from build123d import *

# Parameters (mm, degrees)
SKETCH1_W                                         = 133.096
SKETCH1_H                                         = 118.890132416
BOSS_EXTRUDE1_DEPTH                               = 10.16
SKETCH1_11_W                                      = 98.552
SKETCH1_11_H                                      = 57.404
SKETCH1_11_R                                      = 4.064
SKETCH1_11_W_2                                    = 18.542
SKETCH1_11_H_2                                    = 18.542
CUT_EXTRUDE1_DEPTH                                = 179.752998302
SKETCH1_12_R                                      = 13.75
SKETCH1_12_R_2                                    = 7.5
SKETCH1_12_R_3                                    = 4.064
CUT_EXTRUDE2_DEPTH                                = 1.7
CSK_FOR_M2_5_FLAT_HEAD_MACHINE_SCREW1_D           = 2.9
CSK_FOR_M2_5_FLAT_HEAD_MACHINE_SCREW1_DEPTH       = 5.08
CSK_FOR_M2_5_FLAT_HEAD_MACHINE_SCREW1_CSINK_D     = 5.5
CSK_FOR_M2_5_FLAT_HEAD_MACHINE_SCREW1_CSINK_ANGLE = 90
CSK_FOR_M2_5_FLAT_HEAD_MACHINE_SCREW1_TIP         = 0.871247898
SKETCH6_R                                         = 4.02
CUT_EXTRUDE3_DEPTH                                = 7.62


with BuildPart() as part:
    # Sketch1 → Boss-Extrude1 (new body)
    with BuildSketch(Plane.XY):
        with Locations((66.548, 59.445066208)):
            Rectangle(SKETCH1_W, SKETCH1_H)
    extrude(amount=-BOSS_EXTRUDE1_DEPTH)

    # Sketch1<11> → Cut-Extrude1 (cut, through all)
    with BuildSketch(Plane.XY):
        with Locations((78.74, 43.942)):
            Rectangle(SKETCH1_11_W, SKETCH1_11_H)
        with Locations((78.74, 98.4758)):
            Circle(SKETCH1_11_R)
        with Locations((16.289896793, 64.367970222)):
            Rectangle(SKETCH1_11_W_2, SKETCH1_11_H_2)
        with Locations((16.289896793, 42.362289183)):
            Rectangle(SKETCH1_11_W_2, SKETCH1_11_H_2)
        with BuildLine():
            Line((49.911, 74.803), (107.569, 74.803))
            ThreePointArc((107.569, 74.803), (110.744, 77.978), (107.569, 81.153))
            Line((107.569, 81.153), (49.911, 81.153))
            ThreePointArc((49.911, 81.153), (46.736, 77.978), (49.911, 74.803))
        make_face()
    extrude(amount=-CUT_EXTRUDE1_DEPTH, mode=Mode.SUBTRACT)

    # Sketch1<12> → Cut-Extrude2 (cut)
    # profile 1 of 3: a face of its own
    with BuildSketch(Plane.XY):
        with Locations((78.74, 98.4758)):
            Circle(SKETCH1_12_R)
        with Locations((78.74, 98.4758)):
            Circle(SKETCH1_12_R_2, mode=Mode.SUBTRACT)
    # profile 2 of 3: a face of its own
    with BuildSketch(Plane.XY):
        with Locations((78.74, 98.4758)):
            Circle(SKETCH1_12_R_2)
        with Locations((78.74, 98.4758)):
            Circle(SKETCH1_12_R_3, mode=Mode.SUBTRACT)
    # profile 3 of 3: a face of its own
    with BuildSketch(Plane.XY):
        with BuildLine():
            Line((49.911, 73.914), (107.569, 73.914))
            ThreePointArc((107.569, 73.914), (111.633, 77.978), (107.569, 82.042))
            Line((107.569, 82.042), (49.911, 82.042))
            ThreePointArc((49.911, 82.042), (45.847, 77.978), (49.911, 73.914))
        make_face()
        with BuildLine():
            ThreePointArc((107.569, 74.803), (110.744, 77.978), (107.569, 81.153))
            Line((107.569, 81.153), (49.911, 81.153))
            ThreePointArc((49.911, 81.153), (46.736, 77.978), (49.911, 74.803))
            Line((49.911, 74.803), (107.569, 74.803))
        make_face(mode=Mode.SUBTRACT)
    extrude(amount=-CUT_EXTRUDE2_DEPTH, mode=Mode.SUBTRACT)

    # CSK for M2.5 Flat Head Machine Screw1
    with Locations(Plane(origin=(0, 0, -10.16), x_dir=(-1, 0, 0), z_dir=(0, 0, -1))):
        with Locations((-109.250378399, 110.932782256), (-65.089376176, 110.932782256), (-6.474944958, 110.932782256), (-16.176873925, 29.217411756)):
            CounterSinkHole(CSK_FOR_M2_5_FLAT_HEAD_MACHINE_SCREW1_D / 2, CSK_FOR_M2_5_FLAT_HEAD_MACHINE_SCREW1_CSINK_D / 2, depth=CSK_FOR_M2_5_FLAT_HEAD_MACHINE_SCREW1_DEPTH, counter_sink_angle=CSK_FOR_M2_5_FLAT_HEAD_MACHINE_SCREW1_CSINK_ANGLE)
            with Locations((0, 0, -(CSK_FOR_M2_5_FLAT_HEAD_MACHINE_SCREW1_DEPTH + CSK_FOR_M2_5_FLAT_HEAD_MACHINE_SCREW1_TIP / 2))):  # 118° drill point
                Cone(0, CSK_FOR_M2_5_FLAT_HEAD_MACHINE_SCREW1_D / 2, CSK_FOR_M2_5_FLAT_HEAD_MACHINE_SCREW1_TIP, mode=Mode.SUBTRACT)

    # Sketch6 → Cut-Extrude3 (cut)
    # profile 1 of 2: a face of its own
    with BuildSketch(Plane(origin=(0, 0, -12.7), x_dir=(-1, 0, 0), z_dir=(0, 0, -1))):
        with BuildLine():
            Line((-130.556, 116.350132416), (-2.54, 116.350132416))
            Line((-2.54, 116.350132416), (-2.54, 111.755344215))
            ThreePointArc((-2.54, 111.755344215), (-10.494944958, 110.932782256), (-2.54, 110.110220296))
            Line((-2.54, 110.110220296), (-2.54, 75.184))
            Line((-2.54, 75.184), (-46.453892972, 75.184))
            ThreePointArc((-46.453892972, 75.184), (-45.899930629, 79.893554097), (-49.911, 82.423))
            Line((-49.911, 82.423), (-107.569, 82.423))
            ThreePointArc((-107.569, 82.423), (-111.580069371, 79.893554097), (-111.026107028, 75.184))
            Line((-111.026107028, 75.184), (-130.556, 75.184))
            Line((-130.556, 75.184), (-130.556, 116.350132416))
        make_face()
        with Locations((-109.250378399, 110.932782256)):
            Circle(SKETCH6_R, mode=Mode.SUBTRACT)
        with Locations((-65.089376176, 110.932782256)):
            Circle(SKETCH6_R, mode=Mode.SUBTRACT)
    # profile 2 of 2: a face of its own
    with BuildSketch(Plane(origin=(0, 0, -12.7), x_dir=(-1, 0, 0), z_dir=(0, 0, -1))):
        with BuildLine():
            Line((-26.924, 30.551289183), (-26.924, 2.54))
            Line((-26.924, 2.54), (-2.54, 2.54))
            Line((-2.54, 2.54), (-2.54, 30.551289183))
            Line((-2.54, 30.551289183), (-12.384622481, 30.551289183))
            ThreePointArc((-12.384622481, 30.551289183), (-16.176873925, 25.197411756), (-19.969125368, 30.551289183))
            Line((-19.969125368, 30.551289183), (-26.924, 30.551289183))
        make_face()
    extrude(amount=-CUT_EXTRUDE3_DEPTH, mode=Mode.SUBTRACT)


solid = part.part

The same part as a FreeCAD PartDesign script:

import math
import FreeCAD as App
import Part
import Sketcher
from FreeCAD import Vector
Q = App.Units.Quantity


def add_polygon(sketch, points):
    """Adds a closed chain of lines whose ends are joined by coincident constraints."""
    first, n = sketch.GeometryCount, len(points)
    for a, b in zip(points, points[1:] + points[:1]):
        sketch.addGeometry(Part.LineSegment(App.Vector(*a, 0), App.Vector(*b, 0)), False)
    for i in range(n):
        sketch.addConstraint(Sketcher.Constraint("Coincident", first + i, 2, first + (i + 1) % n, 1))

doc = App.newDocument("Part")
body = doc.addObject("PartDesign::Body", "Body")

sketch1 = doc.addObject("Sketcher::SketchObject", "Sketch")
body.addObject(sketch1)
sketch1.AttachmentSupport = (doc.XY_Plane, [""])
sketch1.MapMode = "FlatFace"
add_polygon(sketch1, [(0, 119), (0, 0), (133, 0), (133, 119)])
sketch1.addConstraint([
    Sketcher.Constraint("Vertical", 0),
    Sketcher.Constraint("Horizontal", 1),
    Sketcher.Constraint("Vertical", 2),
    Sketcher.Constraint("Horizontal", 3),
    Sketcher.Constraint("Coincident", 0, 2, -1, 1),
    Sketcher.Constraint("DistanceX", 1, 1, 1, 2, Q("5.24 in")),
    Sketcher.Constraint("DistanceY", 0, 2, 0, 1, 118.890132),
])
pad1 = doc.addObject("PartDesign::Pad", "Pad")
body.addObject(pad1)
pad1.Profile = sketch1
pad1.Length = Q("0.4 in")
pad1.Reversed = True

sketch2 = doc.addObject("Sketcher::SketchObject", "Sketch001")
body.addObject(sketch2)
sketch2.AttachmentSupport = (doc.XY_Plane, [""])
sketch2.MapMode = "FlatFace"
add_polygon(sketch2, [(29.5, 72.6), (29.5, 15.2), (128, 15.2), (128, 72.6)])
sketch2.addGeometry(Part.Circle(Vector(78.7, 98.5, 0), Vector(0, 0, 1), 4.1), False)
add_polygon(sketch2, [(7, 73.6), (7, 55.1), (25.6, 55.1), (25.6, 73.6)])
add_polygon(sketch2, [(7, 51.6), (7, 33.1), (25.6, 33.1), (25.6, 51.6)])
sketch2.addGeometry(Part.LineSegment(Vector(49.9, 74.8, 0), Vector(107.6, 74.8, 0)), False)
sketch2.addGeometry(Part.ArcOfCircle(Part.Circle(Vector(107.6, 78, 0), Vector(0, 0, 1), 3.2), math.radians(-90), math.radians(90)), False)
sketch2.addGeometry(Part.LineSegment(Vector(107.6, 81.2, 0), Vector(49.9, 81.2, 0)), False)
sketch2.addGeometry(Part.ArcOfCircle(Part.Circle(Vector(49.9, 78, 0), Vector(0, 0, 1), 3.2), math.radians(90), math.radians(270)), False)
sketch2.addConstraint([
    Sketcher.Constraint("Tangent", 13, 2, 14, 1),
    Sketcher.Constraint("Tangent", 14, 2, 15, 1),
    Sketcher.Constraint("Tangent", 15, 2, 16, 1),
    Sketcher.Constraint("Tangent", 16, 2, 13, 1),
    Sketcher.Constraint("Vertical", 0),
    Sketcher.Constraint("Horizontal", 1),
    Sketcher.Constraint("Vertical", 2),
    Sketcher.Constraint("Horizontal", 3),
    Sketcher.Constraint("Vertical", 5),
    Sketcher.Constraint("Horizontal", 6),
    Sketcher.Constraint("Vertical", 7),
    Sketcher.Constraint("Horizontal", 8),
    Sketcher.Constraint("Vertical", 9),
    Sketcher.Constraint("Horizontal", 10),
    Sketcher.Constraint("Vertical", 11),
    Sketcher.Constraint("Horizontal", 12),
    Sketcher.Constraint("Horizontal", 13),
    Sketcher.Constraint("Horizontal", 15),
    Sketcher.Constraint("Vertical", 8, 2, 9, 2),
    Sketcher.Constraint("Vertical", 7, 2, 10, 2),
    Sketcher.Constraint("Equal", 12, 5),
    Sketcher.Constraint("Equal", 7, 9),
    Sketcher.Constraint("Diameter", 4, Q("0.32 in")),
    Sketcher.Constraint("Radius", 14, Q("0.125 in")),
    Sketcher.Constraint("DistanceX", 1, 1, 1, 2, Q("3.88 in")),
    Sketcher.Constraint("DistanceX", 6, 1, 6, 2, Q("0.73 in")),
    Sketcher.Constraint("DistanceX", 13, 1, 13, 2, Q("2.27 in")),
    Sketcher.Constraint("DistanceY", 0, 2, 0, 1, Q("2.26 in")),
    Sketcher.Constraint("DistanceX", -1, 1, 4, 3, Q("3.1 in")),
    Sketcher.Constraint("DistanceY", -1, 1, 0, 2, Q("0.6 in")),
    Sketcher.Constraint("DistanceY", -1, 1, 14, 3, Q("3.07 in")),
    Sketcher.Constraint("DistanceX", -1, 1, 0, 2, Q("1.16 in")),
    Sketcher.Constraint("DistanceY", -1, 1, 4, 3, Q("3.877 in")),
    Sketcher.Constraint("DistanceX", -1, 1, 14, 3, Q("4.235 in")),
    Sketcher.Constraint("DistanceY", -1, 1, 5, 2, 55.09697),
    Sketcher.Constraint("DistanceY", -1, 1, 9, 2, 33.091289),
    Sketcher.Constraint("DistanceX", -1, 1, 5, 2, 7.018897),
])
pocket1 = doc.addObject("PartDesign::Pocket", "Pocket")
body.addObject(pocket1)
pocket1.Profile = sketch2
pocket1.Type = "ThroughAll"

sketch3 = doc.addObject("Sketcher::SketchObject", "Sketch002")
body.addObject(sketch3)
sketch3.AttachmentSupport = (doc.XY_Plane, [""])
sketch3.MapMode = "FlatFace"
sketch3.addGeometry([
    Part.Circle(Vector(78.7, 98.5, 0), Vector(0, 0, 1), 13.8),
    Part.Circle(Vector(78.7, 98.5, 0), Vector(0, 0, 1), 4.1),
    Part.LineSegment(Vector(49.9, 73.9, 0), Vector(107.6, 73.9, 0)),
    Part.ArcOfCircle(Part.Circle(Vector(107.6, 78, 0), Vector(0, 0, 1), 4.1), math.radians(-90), math.radians(90)),
    Part.LineSegment(Vector(107.6, 82, 0), Vector(49.9, 82, 0)),
    Part.ArcOfCircle(Part.Circle(Vector(49.9, 78, 0), Vector(0, 0, 1), 4.1), math.radians(90), math.radians(270)),
    Part.ArcOfCircle(Part.Circle(Vector(107.6, 78, 0), Vector(0, 0, 1), 3.2), math.radians(-90), math.radians(90)),
    Part.LineSegment(Vector(107.6, 74.8, 0), Vector(49.9, 74.8, 0)),
    Part.ArcOfCircle(Part.Circle(Vector(49.9, 78, 0), Vector(0, 0, 1), 3.2), math.radians(90), math.radians(270)),
    Part.LineSegment(Vector(49.9, 81.2, 0), Vector(107.6, 81.2, 0)),
], False)
sketch3.addConstraint([
    Sketcher.Constraint("Tangent", 2, 2, 3, 1),
    Sketcher.Constraint("Tangent", 3, 2, 4, 1),
    Sketcher.Constraint("Tangent", 4, 2, 5, 1),
    Sketcher.Constraint("Tangent", 5, 2, 2, 1),
    Sketcher.Constraint("Tangent", 6, 1, 7, 1),
    Sketcher.Constraint("Tangent", 7, 2, 8, 2),
    Sketcher.Constraint("Tangent", 8, 1, 9, 1),
    Sketcher.Constraint("Tangent", 9, 2, 6, 2),
    Sketcher.Constraint("Horizontal", 2),
    Sketcher.Constraint("Horizontal", 4),
    Sketcher.Constraint("Horizontal", 7),
    Sketcher.Constraint("Horizontal", 9),
    Sketcher.Constraint("Coincident", 1, 3, 0, 3),
    Sketcher.Constraint("Coincident", 6, 3, 3, 3),
    Sketcher.Constraint("Equal", 1, 3),
    Sketcher.Constraint("Vertical", 8, 3, 4, 2),
    Sketcher.Constraint("Diameter", 1, Q("0.32 in")),
    Sketcher.Constraint("Radius", 6, Q("0.125 in")),
    Sketcher.Constraint("DistanceX", 2, 1, 2, 2, Q("2.27 in")),
    Sketcher.Constraint("DistanceX", -1, 1, 0, 3, Q("3.1 in")),
    Sketcher.Constraint("Diameter", 0, 27.5),
    Sketcher.Constraint("DistanceY", -1, 1, 3, 3, Q("3.07 in")),
    Sketcher.Constraint("DistanceY", -1, 1, 0, 3, Q("3.877 in")),
    Sketcher.Constraint("DistanceX", -1, 1, 3, 3, Q("4.235 in")),
])
pocket2 = doc.addObject("PartDesign::Pocket", "Pocket001")
body.addObject(pocket2)
pocket2.Profile = sketch3
pocket2.Length = 1.7

sketch4 = doc.addObject("Sketcher::SketchObject", "Sketch003")
body.addObject(sketch4)
sketch4.AttachmentSupport = (doc.XY_Plane, [""])
sketch4.MapMode = "FlatFace"
sketch4.AttachmentOffset = App.Placement(Vector(0, 0, -0.4 * 25.4), App.Rotation())
sketch4.addGeometry([
    Part.Circle(Vector(109.3, 110.9, 0), Vector(0, 0, 1), 1.4),
    Part.Circle(Vector(65.1, 110.9, 0), Vector(0, 0, 1), 1.4),
    Part.Circle(Vector(6.5, 110.9, 0), Vector(0, 0, 1), 1.4),
    Part.Circle(Vector(16.2, 29.2, 0), Vector(0, 0, 1), 1.4),
], False)
sketch4.addConstraint([
    Sketcher.Constraint("Equal", 0, 1),
    Sketcher.Constraint("Equal", 1, 2),
    Sketcher.Constraint("Equal", 2, 3),
    Sketcher.Constraint("Horizontal", 0, 3, 1, 3),
    Sketcher.Constraint("Horizontal", 1, 3, 2, 3),
    Sketcher.Constraint("Diameter", 0, 2.9),
    Sketcher.Constraint("DistanceX", -1, 1, 0, 3, 109.250378),
    Sketcher.Constraint("DistanceY", -1, 1, 3, 3, 29.217412),
    Sketcher.Constraint("DistanceX", 2, 3, 1, 3, 58.614431),
    Sketcher.Constraint("DistanceX", 2, 3, 3, 3, 9.701929),
    Sketcher.Constraint("DistanceY", 3, 3, 2, 3, 81.71537),
    Sketcher.Constraint("DistanceX", -1, 1, 1, 3, 65.089376),
])
doc.recompute()
hole = doc.addObject("PartDesign::Hole", "Hole")
body.addObject(hole)
hole.Profile = sketch4
hole.ThreadType = "None"
hole.Diameter = 2.9
hole.DepthType = "Dimension"
hole.Depth = Q("0.2 in")
hole.DrillPoint = "Angled"
hole.DrillPointAngle = 118
hole.HoleCutType = "Countersink"
hole.HoleCutDiameter = 5.5
hole.HoleCutCountersinkAngle = 90
hole.Reversed = True

sketch5 = doc.addObject("Sketcher::SketchObject", "Sketch004")
body.addObject(sketch5)
sketch5.AttachmentSupport = (doc.XY_Plane, [""])
sketch5.MapMode = "FlatFace"
sketch5.AttachmentOffset = App.Placement(Vector(0, 0, -0.5 * 25.4), App.Rotation())
sketch5.addGeometry([
    Part.LineSegment(Vector(2.5, 116.4, 0), Vector(130.6, 116.4, 0)),
    Part.LineSegment(Vector(130.6, 116.4, 0), Vector(130.6, 75.2, 0)),
    Part.LineSegment(Vector(130.6, 75.2, 0), Vector(111, 75.2, 0)),
    Part.ArcOfCircle(Part.Circle(Vector(107.6, 78, 0), Vector(0, 0, 1), 4.4), math.radians(-39), math.radians(90)),
    Part.LineSegment(Vector(107.6, 82.4, 0), Vector(49.9, 82.4, 0)),
    Part.ArcOfCircle(Part.Circle(Vector(49.9, 78, 0), Vector(0, 0, 1), 4.4), math.radians(90), math.radians(219)),
    Part.LineSegment(Vector(46.5, 75.2, 0), Vector(2.5, 75.2, 0)),
    Part.LineSegment(Vector(2.5, 75.2, 0), Vector(2.5, 110.1, 0)),
    Part.ArcOfCircle(Part.Circle(Vector(6.5, 110.9, 0), Vector(0, 0, 1), 4), math.radians(-168), math.radians(168)),
    Part.LineSegment(Vector(2.5, 111.8, 0), Vector(2.5, 116.4, 0)),
    Part.Circle(Vector(65.1, 110.9, 0), Vector(0, 0, 1), 4),
    Part.Circle(Vector(109.3, 110.9, 0), Vector(0, 0, 1), 4),
    Part.LineSegment(Vector(26.9, 30.6, 0), Vector(26.9, 2.5, 0)),
    Part.LineSegment(Vector(26.9, 2.5, 0), Vector(2.5, 2.5, 0)),
    Part.LineSegment(Vector(2.5, 2.5, 0), Vector(2.5, 30.6, 0)),
    Part.LineSegment(Vector(2.5, 30.6, 0), Vector(12.4, 30.6, 0)),
    Part.ArcOfCircle(Part.Circle(Vector(16.2, 29.2, 0), Vector(0, 0, 1), 4), math.radians(161), math.radians(379)),
    Part.LineSegment(Vector(20, 30.6, 0), Vector(26.9, 30.6, 0)),
], False)
sketch5.addConstraint([
    Sketcher.Constraint("Coincident", 0, 2, 1, 1),
    Sketcher.Constraint("Coincident", 1, 2, 2, 1),
    Sketcher.Constraint("Coincident", 2, 2, 3, 1),
    Sketcher.Constraint("Tangent", 3, 2, 4, 1),
    Sketcher.Constraint("Tangent", 4, 2, 5, 1),
    Sketcher.Constraint("Coincident", 5, 2, 6, 1),
    Sketcher.Constraint("Coincident", 6, 2, 7, 1),
    Sketcher.Constraint("Coincident", 7, 2, 8, 1),
    Sketcher.Constraint("Coincident", 8, 2, 9, 1),
    Sketcher.Constraint("Coincident", 9, 2, 0, 1),
    Sketcher.Constraint("Coincident", 12, 2, 13, 1),
    Sketcher.Constraint("Coincident", 13, 2, 14, 1),
    Sketcher.Constraint("Coincident", 14, 2, 15, 1),
    Sketcher.Constraint("Coincident", 15, 2, 16, 1),
    Sketcher.Constraint("Coincident", 16, 2, 17, 1),
    Sketcher.Constraint("Coincident", 17, 2, 12, 1),
    Sketcher.Constraint("Horizontal", 0),
    Sketcher.Constraint("Vertical", 1),
    Sketcher.Constraint("Horizontal", 2),
    Sketcher.Constraint("Horizontal", 4),
    Sketcher.Constraint("Horizontal", 6),
    Sketcher.Constraint("Vertical", 7),
    Sketcher.Constraint("Vertical", 9),
    Sketcher.Constraint("Vertical", 12),
    Sketcher.Constraint("Horizontal", 13),
    Sketcher.Constraint("Vertical", 14),
    Sketcher.Constraint("Horizontal", 15),
    Sketcher.Constraint("Horizontal", 17),
    Sketcher.Constraint("Equal", 3, 5),
    Sketcher.Constraint("Equal", 8, 10),
    Sketcher.Constraint("Equal", 10, 11),
    Sketcher.Constraint("Equal", 11, 16),
    Sketcher.Constraint("Horizontal", 8, 3, 10, 3),
    Sketcher.Constraint("Horizontal", 10, 3, 11, 3),
    Sketcher.Constraint("Horizontal", 2, 2, 5, 2),
    Sketcher.Constraint("Horizontal", 15, 2, 16, 2),
    Sketcher.Constraint("Vertical", 7, 2, 8, 2),
    Sketcher.Constraint("Vertical", 9, 2, 13, 2),
    Sketcher.Constraint("Radius", 3, Q("0.175 in")),
    Sketcher.Constraint("DistanceX", 0, 1, 0, 2, Q("5.04 in")),
    Sketcher.Constraint("DistanceX", 4, 2, 4, 1, Q("2.27 in")),
    Sketcher.Constraint("DistanceX", 13, 2, 13, 1, Q("0.96 in")),
    Sketcher.Constraint("DistanceX", -1, 1, 6, 2, Q("0.1 in")),
    Sketcher.Constraint("DistanceY", -1, 1, 12, 2, Q("0.1 in")),
    Sketcher.Constraint("Diameter", 10, 8.04),
    Sketcher.Constraint("DistanceY", -1, 1, 3, 3, Q("3.07 in")),
    Sketcher.Constraint("DistanceY", -1, 1, 1, 2, Q("2.96 in")),
    Sketcher.Constraint("DistanceX", -1, 1, 3, 3, Q("4.235 in")),
    Sketcher.Constraint("DistanceY", 7, 1, 7, 2, 34.92622),
    Sketcher.Constraint("DistanceY", 9, 1, 9, 2, 4.594788),
    Sketcher.Constraint("DistanceY", 12, 2, 12, 1, 28.011289),
    Sketcher.Constraint("DistanceX", 15, 1, 15, 2, 9.844622),
    Sketcher.Constraint("DistanceX", 17, 1, 17, 2, 6.954875),
    Sketcher.Constraint("DistanceY", 1, 2, 1, 1, 41.166132),
    Sketcher.Constraint("DistanceX", -1, 1, 11, 3, 109.250378),
    Sketcher.Constraint("DistanceX", 8, 3, 10, 3, 58.614431),
])
pocket3 = doc.addObject("PartDesign::Pocket", "Pocket002")
body.addObject(pocket3)
pocket3.Profile = sketch5
pocket3.Length = Q("0.3 in")
pocket3.Reversed = True

doc.recompute()
